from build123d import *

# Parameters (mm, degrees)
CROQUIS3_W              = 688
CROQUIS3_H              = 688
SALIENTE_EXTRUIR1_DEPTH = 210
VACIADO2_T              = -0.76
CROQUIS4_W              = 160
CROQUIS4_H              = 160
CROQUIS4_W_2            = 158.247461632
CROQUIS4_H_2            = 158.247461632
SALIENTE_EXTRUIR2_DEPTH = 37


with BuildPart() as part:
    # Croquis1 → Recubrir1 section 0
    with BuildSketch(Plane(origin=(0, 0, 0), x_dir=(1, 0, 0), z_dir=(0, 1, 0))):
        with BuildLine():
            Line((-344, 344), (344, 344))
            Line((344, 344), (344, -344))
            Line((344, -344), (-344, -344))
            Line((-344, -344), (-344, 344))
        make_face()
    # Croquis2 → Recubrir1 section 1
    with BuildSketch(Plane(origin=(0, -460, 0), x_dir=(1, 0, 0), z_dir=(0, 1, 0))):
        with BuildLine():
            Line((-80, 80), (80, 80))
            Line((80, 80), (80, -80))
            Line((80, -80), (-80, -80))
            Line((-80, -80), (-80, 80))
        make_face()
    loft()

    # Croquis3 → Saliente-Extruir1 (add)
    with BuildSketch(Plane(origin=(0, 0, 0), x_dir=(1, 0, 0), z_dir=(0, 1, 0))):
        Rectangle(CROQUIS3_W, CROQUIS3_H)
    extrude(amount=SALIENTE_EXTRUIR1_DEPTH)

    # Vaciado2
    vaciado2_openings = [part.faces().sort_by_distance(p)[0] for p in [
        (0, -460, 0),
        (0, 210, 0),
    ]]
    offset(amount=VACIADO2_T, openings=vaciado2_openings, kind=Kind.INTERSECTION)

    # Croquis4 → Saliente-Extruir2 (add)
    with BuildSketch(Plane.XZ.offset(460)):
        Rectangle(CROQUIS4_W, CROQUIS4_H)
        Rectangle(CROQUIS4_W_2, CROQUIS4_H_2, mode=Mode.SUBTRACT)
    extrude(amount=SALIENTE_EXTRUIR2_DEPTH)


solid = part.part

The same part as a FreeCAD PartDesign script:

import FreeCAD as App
import Part
import Sketcher
Q = App.Units.Quantity


def faces_at(feature, points):
    """Names of the faces that lie closest to the given points."""
    faces = feature.Shape.Faces
    near = lambda p: min(range(len(faces)), key=lambda i: faces[i].distToShape(Part.Vertex(*p))[0])
    return sorted({f"Face{near(p) + 1}" for p in points})


def add_polygon(sketch, points):
    """Adds a closed chain of lines whose ends are joined by coincident constraints."""
    first, n = sketch.GeometryCount, len(points)
    for a, b in zip(points, points[1:] + points[:1]):
        sketch.addGeometry(Part.LineSegment(App.Vector(*a, 0), App.Vector(*b, 0)), False)
    for i in range(n):
        sketch.addConstraint(Sketcher.Constraint("Coincident", first + i, 2, first + (i + 1) % n, 1))

doc = App.newDocument("Part")
body = doc.addObject("PartDesign::Body", "Body")

sketch1 = body.newObject("Sketcher::SketchObject", "Sketch")
sketch1.AttachmentSupport = (doc.getObject("XZ_Plane"), [""])
sketch1.MapMode = "FlatFace"
add_polygon(sketch1, [(344, -344), (-344, -344), (-344, 344), (344, 344)])
sketch1.addConstraint([
    Sketcher.Constraint("Horizontal", 0),
    Sketcher.Constraint("Vertical", 1),
    Sketcher.Constraint("Horizontal", 2),
    Sketcher.Constraint("Vertical", 3),
    Sketcher.Constraint("Symmetric", 0, 2, 2, 2, -1, 1),
    Sketcher.Constraint("Equal", 2, 1),
    Sketcher.Constraint("DistanceX", 0, 2, 0, 1, Q("688 mm")),
])

sketch2 = body.newObject("Sketcher::SketchObject", "Sketch001")
sketch2.AttachmentSupport = (doc.getObject("XZ_Plane"), [""])
sketch2.MapMode = "FlatFace"
sketch2.AttachmentOffset = App.Placement(App.Vector(0, 0, 460), App.Rotation())
add_polygon(sketch2, [(80, -80), (-80, -80), (-80, 80), (80, 80)])
sketch2.addConstraint([
    Sketcher.Constraint("Horizontal", 0),
    Sketcher.Constraint("Vertical", 1),
    Sketcher.Constraint("Horizontal", 2),
    Sketcher.Constraint("Vertical", 3),
    Sketcher.Constraint("Symmetric", 0, 2, 2, 2, -1, 1),
    Sketcher.Constraint("Equal", 2, 1),
    Sketcher.Constraint("DistanceX", 0, 2, 0, 1, Q("160 mm")),
])

additiveloft = body.newObject("PartDesign::AdditiveLoft", "AdditiveLoft")
additiveloft.Profile = sketch1
additiveloft.Sections = [sketch2]

sketch3 = body.newObject("Sketcher::SketchObject", "Sketch002")
sketch3.AttachmentSupport = (doc.getObject("XZ_Plane"), [""])
sketch3.MapMode = "FlatFace"
add_polygon(sketch3, [(-344, -344), (-344, 344), (344, 344), (344, -344)])
sketch3.addConstraint([
    Sketcher.Constraint("Vertical", 0),
    Sketcher.Constraint("Horizontal", 1),
    Sketcher.Constraint("Vertical", 2),
    Sketcher.Constraint("Horizontal", 3),
    Sketcher.Constraint("Symmetric", 0, 2, 2, 2, -1, 1),
    Sketcher.Constraint("Equal", 3, 0),
    Sketcher.Constraint("DistanceX", 1, 1, 1, 2, Q("688 mm")),
])
pad1 = body.newObject("PartDesign::Pad", "Pad")
pad1.Profile = sketch3
pad1.Length = 210
pad1.Reversed = True
doc.recompute()

thickness = body.newObject("PartDesign::Thickness", "Thickness")
thickness.Base = (pad1, faces_at(pad1, [(0, -460, 0), (0, 210, 0)]))
thickness.Value = 0.76
thickness.Reversed = True
thickness.Join = "Intersection"

sketch4 = body.newObject("Sketcher::SketchObject", "Sketch003")
sketch4.AttachmentSupport = (doc.getObject("XZ_Plane"), [""])
sketch4.MapMode = "FlatFace"
sketch4.AttachmentOffset = App.Placement(App.Vector(0, 0, 460), App.Rotation())
add_polygon(sketch4, [(-80, 80), (-80, -80), (80, -80), (80, 80)])
add_polygon(sketch4, [(79, -79), (-79, -79), (-79, 79), (79, 79)])
sketch4.addConstraint([
    Sketcher.Constraint("Vertical", 0),
    Sketcher.Constraint("Horizontal", 1),
    Sketcher.Constraint("Vertical", 2),
    Sketcher.Constraint("Horizontal", 3),
    Sketcher.Constraint("Horizontal", 4),
    Sketcher.Constraint("Vertical", 5),
    Sketcher.Constraint("Horizontal", 6),
    Sketcher.Constraint("Vertical", 7),
    Sketcher.Constraint("Symmetric", 0, 2, 2, 2, -1, 1),
    Sketcher.Constraint("Symmetric", 4, 2, 6, 2, -1, 1),
    Sketcher.Constraint("Equal", 3, 0),
    Sketcher.Constraint("Equal", 6, 5),
    Sketcher.Constraint("DistanceX", 1, 1, 1, 2, Q("160 mm")),
    Sketcher.Constraint("DistanceX", 4, 2, 4, 1, Q("158.247462 mm")),
])
pad2 = body.newObject("PartDesign::Pad", "Pad001")
pad2.Profile = sketch4
pad2.Length = 37

doc.recompute()
